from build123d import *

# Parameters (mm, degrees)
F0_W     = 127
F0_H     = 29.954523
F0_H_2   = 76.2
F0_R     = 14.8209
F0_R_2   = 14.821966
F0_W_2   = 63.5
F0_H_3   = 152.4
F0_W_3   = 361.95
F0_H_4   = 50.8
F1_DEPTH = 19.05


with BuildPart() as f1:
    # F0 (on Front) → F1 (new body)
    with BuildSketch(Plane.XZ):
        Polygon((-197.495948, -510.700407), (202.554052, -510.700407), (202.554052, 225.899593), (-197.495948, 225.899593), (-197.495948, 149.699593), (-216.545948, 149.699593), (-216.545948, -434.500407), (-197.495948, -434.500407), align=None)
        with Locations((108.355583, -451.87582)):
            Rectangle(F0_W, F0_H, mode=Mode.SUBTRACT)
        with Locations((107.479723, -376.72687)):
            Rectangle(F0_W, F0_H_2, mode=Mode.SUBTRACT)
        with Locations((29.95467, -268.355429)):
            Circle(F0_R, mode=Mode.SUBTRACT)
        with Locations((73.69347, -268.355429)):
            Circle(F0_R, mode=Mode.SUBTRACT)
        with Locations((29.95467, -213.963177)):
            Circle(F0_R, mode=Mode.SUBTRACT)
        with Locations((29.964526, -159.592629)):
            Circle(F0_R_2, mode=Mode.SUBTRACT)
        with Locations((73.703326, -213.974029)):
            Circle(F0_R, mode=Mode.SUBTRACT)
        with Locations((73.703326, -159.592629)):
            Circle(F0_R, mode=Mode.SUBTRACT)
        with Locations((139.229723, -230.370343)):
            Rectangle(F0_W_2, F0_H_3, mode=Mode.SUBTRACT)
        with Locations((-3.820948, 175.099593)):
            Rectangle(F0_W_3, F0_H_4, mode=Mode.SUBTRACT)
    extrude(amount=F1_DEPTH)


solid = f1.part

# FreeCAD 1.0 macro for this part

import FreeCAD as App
import Part
import Sketcher
from FreeCAD import Vector
Q = App.Units.Quantity

doc = App.newDocument("Part")
body = doc.addObject("PartDesign::Body", "Body")

sketch1 = body.newObject("Sketcher::SketchObject", "Sketch")
sketch1.AttachmentSupport = (doc.getObject("XZ_Plane"), [""])
sketch1.MapMode = "FlatFace"
sketch1.addGeometry(Part.LineSegment(Vector(-197, -511, 0), Vector(203, -511, 0)), False)
sketch1.addGeometry(Part.LineSegment(Vector(203, -511, 0), Vector(203, 226, 0)), False)
sketch1.addGeometry(Part.LineSegment(Vector(203, 226, 0), Vector(-197, 226, 0)), False)
sketch1.addGeometry(Part.LineSegment(Vector(-197, 226, 0), Vector(-197, 150, 0)), False)
sketch1.addGeometry(Part.LineSegment(Vector(-197, 150, 0), Vector(-217, 150, 0)), False)
sketch1.addGeometry(Part.LineSegment(Vector(-217, 150, 0), Vector(-217, -435, 0)), False)
sketch1.addGeometry(Part.LineSegment(Vector(-217, -435, 0), Vector(-197, -435, 0)), False)
sketch1.addGeometry(Part.LineSegment(Vector(-197, -435, 0), Vector(-197, -511, 0)), False)
sketch1.addGeometry(Part.LineSegment(Vector(172, -467, 0), Vector(45, -467, 0)), False)
sketch1.addGeometry(Part.LineSegment(Vector(45, -467, 0), Vector(45, -437, 0)), False)
sketch1.addGeometry(Part.LineSegment(Vector(45, -437, 0), Vector(172, -437, 0)), False)
sketch1.addGeometry(Part.LineSegment(Vector(172, -437, 0), Vector(172, -467, 0)), False)
sketch1.addGeometry(Part.LineSegment(Vector(171, -415, 0), Vector(44, -415, 0)), False)
sketch1.addGeometry(Part.LineSegment(Vector(44, -415, 0), Vector(44, -339, 0)), False)
sketch1.addGeometry(Part.LineSegment(Vector(44, -339, 0), Vector(171, -339, 0)), False)
sketch1.addGeometry(Part.LineSegment(Vector(171, -339, 0), Vector(171, -415, 0)), False)
sketch1.addGeometry(Part.Circle(Vector(30, -268, 0), Vector(0, 0, 1), 15), False)
sketch1.addGeometry(Part.Circle(Vector(74, -268, 0), Vector(0, 0, 1), 15), False)
sketch1.addGeometry(Part.Circle(Vector(30, -214, 0), Vector(0, 0, 1), 15), False)
sketch1.addGeometry(Part.Circle(Vector(30, -160, 0), Vector(0, 0, 1), 15), False)
sketch1.addGeometry(Part.Circle(Vector(74, -214, 0), Vector(0, 0, 1), 15), False)
sketch1.addGeometry(Part.Circle(Vector(74, -160, 0), Vector(0, 0, 1), 15), False)
sketch1.addGeometry(Part.LineSegment(Vector(171, -307, 0), Vector(107, -307, 0)), False)
sketch1.addGeometry(Part.LineSegment(Vector(107, -307, 0), Vector(107, -154, 0)), False)
sketch1.addGeometry(Part.LineSegment(Vector(107, -154, 0), Vector(171, -154, 0)), False)
sketch1.addGeometry(Part.LineSegment(Vector(171, -154, 0), Vector(171, -307, 0)), False)
sketch1.addGeometry(Part.LineSegment(Vector(177, 150, 0), Vector(-185, 150, 0)), False)
sketch1.addGeometry(Part.LineSegment(Vector(-185, 150, 0), Vector(-185, 200, 0)), False)
sketch1.addGeometry(Part.LineSegment(Vector(-185, 200, 0), Vector(177, 200, 0)), False)
sketch1.addGeometry(Part.LineSegment(Vector(177, 200, 0), Vector(177, 150, 0)), False)
sketch1.addConstraint(Sketcher.Constraint("Coincident", 0, 2, 1, 1))
sketch1.addConstraint(Sketcher.Constraint("Coincident", 1, 2, 2, 1))
sketch1.addConstraint(Sketcher.Constraint("Coincident", 2, 2, 3, 1))
sketch1.addConstraint(Sketcher.Constraint("Coincident", 3, 2, 4, 1))
sketch1.addConstraint(Sketcher.Constraint("Coincident", 4, 2, 5, 1))
sketch1.addConstraint(Sketcher.Constraint("Coincident", 5, 2, 6, 1))
sketch1.addConstraint(Sketcher.Constraint("Coincident", 6, 2, 7, 1))
sketch1.addConstraint(Sketcher.Constraint("Coincident", 7, 2, 0, 1))
sketch1.addConstraint(Sketcher.Constraint("Coincident", 8, 2, 9, 1))
sketch1.addConstraint(Sketcher.Constraint("Coincident", 9, 2, 10, 1))
sketch1.addConstraint(Sketcher.Constraint("Coincident", 10, 2, 11, 1))
sketch1.addConstraint(Sketcher.Constraint("Coincident", 11, 2, 8, 1))
sketch1.addConstraint(Sketcher.Constraint("Coincident", 12, 2, 13, 1))
sketch1.addConstraint(Sketcher.Constraint("Coincident", 13, 2, 14, 1))
sketch1.addConstraint(Sketcher.Constraint("Coincident", 14, 2, 15, 1))
sketch1.addConstraint(Sketcher.Constraint("Coincident", 15, 2, 12, 1))
sketch1.addConstraint(Sketcher.Constraint("Coincident", 22, 2, 23, 1))
sketch1.addConstraint(Sketcher.Constraint("Coincident", 23, 2, 24, 1))
sketch1.addConstraint(Sketcher.Constraint("Coincident", 24, 2, 25, 1))
sketch1.addConstraint(Sketcher.Constraint("Coincident", 25, 2, 22, 1))
sketch1.addConstraint(Sketcher.Constraint("Coincident", 26, 2, 27, 1))
sketch1.addConstraint(Sketcher.Constraint("Coincident", 27, 2, 28, 1))
sketch1.addConstraint(Sketcher.Constraint("Coincident", 28, 2, 29, 1))
sketch1.addConstraint(Sketcher.Constraint("Coincident", 29, 2, 26, 1))
sketch1.addConstraint(Sketcher.Constraint("Horizontal", 0))
sketch1.addConstraint(Sketcher.Constraint("Vertical", 1))
sketch1.addConstraint(Sketcher.Constraint("Horizontal", 2))
sketch1.addConstraint(Sketcher.Constraint("Vertical", 3))
sketch1.addConstraint(Sketcher.Constraint("Horizontal", 4))
sketch1.addConstraint(Sketcher.Constraint("Vertical", 5))
sketch1.addConstraint(Sketcher.Constraint("Horizontal", 6))
sketch1.addConstraint(Sketcher.Constraint("Vertical", 7))
sketch1.addConstraint(Sketcher.Constraint("Horizontal", 8))
sketch1.addConstraint(Sketcher.Constraint("Vertical", 9))
sketch1.addConstraint(Sketcher.Constraint("Horizontal", 10))
sketch1.addConstraint(Sketcher.Constraint("Vertical", 11))
sketch1.addConstraint(Sketcher.Constraint("Horizontal", 12))
sketch1.addConstraint(Sketcher.Constraint("Vertical", 13))
sketch1.addConstraint(Sketcher.Constraint("Horizontal", 14))
sketch1.addConstraint(Sketcher.Constraint("Vertical", 15))
sketch1.addConstraint(Sketcher.Constraint("Horizontal", 22))
sketch1.addConstraint(Sketcher.Constraint("Vertical", 23))
sketch1.addConstraint(Sketcher.Constraint("Horizontal", 24))
sketch1.addConstraint(Sketcher.Constraint("Vertical", 25))
sketch1.addConstraint(Sketcher.Constraint("Horizontal", 26))
sketch1.addConstraint(Sketcher.Constraint("Vertical", 27))
sketch1.addConstraint(Sketcher.Constraint("Horizontal", 28))
sketch1.addConstraint(Sketcher.Constraint("Vertical", 29))
sketch1.addConstraint(Sketcher.Constraint("Equal", 16, 17))
sketch1.addConstraint(Sketcher.Constraint("Equal", 17, 18))
sketch1.addConstraint(Sketcher.Constraint("Equal", 18, 20))
sketch1.addConstraint(Sketcher.Constraint("Equal", 20, 21))
sketch1.addConstraint(Sketcher.Constraint("Horizontal", 16, 3, 17, 3))
sketch1.addConstraint(Sketcher.Constraint("Horizontal", 19, 3, 21, 3))
sketch1.addConstraint(Sketcher.Constraint("Horizontal", 4, 2, 26, 2))
sketch1.addConstraint(Sketcher.Constraint("Vertical", 16, 3, 18, 3))
sketch1.addConstraint(Sketcher.Constraint("Vertical", 20, 3, 21, 3))
sketch1.addConstraint(Sketcher.Constraint("Vertical", 3, 2, 6, 2))
sketch1.addConstraint(Sketcher.Constraint("Vertical", 15, 2, 24, 2))
sketch1.addConstraint(Sketcher.Constraint("Equal", 10, 12))
sketch1.addConstraint(Sketcher.Constraint("Equal", 3, 7))
sketch1.addConstraint(Sketcher.Constraint("Equal", 7, 13))
sketch1.addConstraint(Sketcher.Constraint("DistanceX", 8, 2, 8, 1, Q("5 in")))
sketch1.addConstraint(Sketcher.Constraint("DistanceY", 1, 1, 1, 2, Q("29 in")))
sketch1.addConstraint(Sketcher.Constraint("DistanceY", 3, 2, 3, 1, Q("3 in")))
sketch1.addConstraint(Sketcher.Constraint("DistanceY", 23, 1, 23, 2, Q("6 in")))
sketch1.addConstraint(Sketcher.Constraint("DistanceY", 27, 1, 27, 2, Q("2 in")))
sketch1.addConstraint(Sketcher.Constraint("Diameter", 16, Q("1.167 in")))
sketch1.addConstraint(Sketcher.Constraint("DistanceX", 22, 2, 22, 1, Q("2.5 in")))
sketch1.addConstraint(Sketcher.Constraint("DistanceX", 28, 2, 1, 2, Q("1 in")))
sketch1.addConstraint(Sketcher.Constraint("DistanceX", 0, 1, 0, 2, Q("15.75 in")))
sketch1.addConstraint(Sketcher.Constraint("DistanceX", 4, 2, 4, 1, Q("0.75 in")))
sketch1.addConstraint(Sketcher.Constraint("DistanceX", 26, 2, 26, 1, Q("14.25 in")))
sketch1.addConstraint(Sketcher.Constraint("Diameter", 19, 29.643932))
sketch1.addConstraint(Sketcher.Constraint("DistanceX", 16, 3, 17, 3, Q("1.722 in")))
sketch1.addConstraint(Sketcher.Constraint("DistanceY", 16, 3, 19, 3, Q("4.282 in")))
sketch1.addConstraint(Sketcher.Constraint("DistanceY", 17, 3, 20, 3, Q("2.141 in")))
sketch1.addConstraint(Sketcher.Constraint("DistanceX", 19, 3, 20, 3, Q("1.722 in")))
sketch1.addConstraint(Sketcher.Constraint("DistanceY", 9, 1, 9, 2, 29.954523))
sketch1.addConstraint(Sketcher.Constraint("DistanceX", -1, 1, 16, 3, 29.95467))
sketch1.addConstraint(Sketcher.Constraint("DistanceY", 16, 3, -1, 1, 268.355429))
sketch1.addConstraint(Sketcher.Constraint("DistanceX", 2, 2, -1, 1, 197.495948))
sketch1.addConstraint(Sketcher.Constraint("DistanceY", 8, 2, -1, 1, 466.853081))
sketch1.addConstraint(Sketcher.Constraint("DistanceY", 12, 2, -1, 1, 414.82687))
sketch1.addConstraint(Sketcher.Constraint("DistanceY", 18, 3, 19, 3, 54.370548))
sketch1.addConstraint(Sketcher.Constraint("DistanceY", 0, 2, 18, 3, 296.73723))
sketch1.addConstraint(Sketcher.Constraint("DistanceX", 8, 2, 0, 2, 157.698469))
sketch1.addConstraint(Sketcher.Constraint("DistanceX", 12, 2, 9, 2, 0.87586))
sketch1.addConstraint(Sketcher.Constraint("DistanceX", -1, 1, 19, 3, 29.964526))
sketch1.addConstraint(Sketcher.Constraint("DistanceY", 22, 2, -1, 1, 306.570343))
pad1 = body.newObject("PartDesign::Pad", "Pad")
pad1.Profile = sketch1
pad1.Length = Q("0.75 in")

doc.recompute()
